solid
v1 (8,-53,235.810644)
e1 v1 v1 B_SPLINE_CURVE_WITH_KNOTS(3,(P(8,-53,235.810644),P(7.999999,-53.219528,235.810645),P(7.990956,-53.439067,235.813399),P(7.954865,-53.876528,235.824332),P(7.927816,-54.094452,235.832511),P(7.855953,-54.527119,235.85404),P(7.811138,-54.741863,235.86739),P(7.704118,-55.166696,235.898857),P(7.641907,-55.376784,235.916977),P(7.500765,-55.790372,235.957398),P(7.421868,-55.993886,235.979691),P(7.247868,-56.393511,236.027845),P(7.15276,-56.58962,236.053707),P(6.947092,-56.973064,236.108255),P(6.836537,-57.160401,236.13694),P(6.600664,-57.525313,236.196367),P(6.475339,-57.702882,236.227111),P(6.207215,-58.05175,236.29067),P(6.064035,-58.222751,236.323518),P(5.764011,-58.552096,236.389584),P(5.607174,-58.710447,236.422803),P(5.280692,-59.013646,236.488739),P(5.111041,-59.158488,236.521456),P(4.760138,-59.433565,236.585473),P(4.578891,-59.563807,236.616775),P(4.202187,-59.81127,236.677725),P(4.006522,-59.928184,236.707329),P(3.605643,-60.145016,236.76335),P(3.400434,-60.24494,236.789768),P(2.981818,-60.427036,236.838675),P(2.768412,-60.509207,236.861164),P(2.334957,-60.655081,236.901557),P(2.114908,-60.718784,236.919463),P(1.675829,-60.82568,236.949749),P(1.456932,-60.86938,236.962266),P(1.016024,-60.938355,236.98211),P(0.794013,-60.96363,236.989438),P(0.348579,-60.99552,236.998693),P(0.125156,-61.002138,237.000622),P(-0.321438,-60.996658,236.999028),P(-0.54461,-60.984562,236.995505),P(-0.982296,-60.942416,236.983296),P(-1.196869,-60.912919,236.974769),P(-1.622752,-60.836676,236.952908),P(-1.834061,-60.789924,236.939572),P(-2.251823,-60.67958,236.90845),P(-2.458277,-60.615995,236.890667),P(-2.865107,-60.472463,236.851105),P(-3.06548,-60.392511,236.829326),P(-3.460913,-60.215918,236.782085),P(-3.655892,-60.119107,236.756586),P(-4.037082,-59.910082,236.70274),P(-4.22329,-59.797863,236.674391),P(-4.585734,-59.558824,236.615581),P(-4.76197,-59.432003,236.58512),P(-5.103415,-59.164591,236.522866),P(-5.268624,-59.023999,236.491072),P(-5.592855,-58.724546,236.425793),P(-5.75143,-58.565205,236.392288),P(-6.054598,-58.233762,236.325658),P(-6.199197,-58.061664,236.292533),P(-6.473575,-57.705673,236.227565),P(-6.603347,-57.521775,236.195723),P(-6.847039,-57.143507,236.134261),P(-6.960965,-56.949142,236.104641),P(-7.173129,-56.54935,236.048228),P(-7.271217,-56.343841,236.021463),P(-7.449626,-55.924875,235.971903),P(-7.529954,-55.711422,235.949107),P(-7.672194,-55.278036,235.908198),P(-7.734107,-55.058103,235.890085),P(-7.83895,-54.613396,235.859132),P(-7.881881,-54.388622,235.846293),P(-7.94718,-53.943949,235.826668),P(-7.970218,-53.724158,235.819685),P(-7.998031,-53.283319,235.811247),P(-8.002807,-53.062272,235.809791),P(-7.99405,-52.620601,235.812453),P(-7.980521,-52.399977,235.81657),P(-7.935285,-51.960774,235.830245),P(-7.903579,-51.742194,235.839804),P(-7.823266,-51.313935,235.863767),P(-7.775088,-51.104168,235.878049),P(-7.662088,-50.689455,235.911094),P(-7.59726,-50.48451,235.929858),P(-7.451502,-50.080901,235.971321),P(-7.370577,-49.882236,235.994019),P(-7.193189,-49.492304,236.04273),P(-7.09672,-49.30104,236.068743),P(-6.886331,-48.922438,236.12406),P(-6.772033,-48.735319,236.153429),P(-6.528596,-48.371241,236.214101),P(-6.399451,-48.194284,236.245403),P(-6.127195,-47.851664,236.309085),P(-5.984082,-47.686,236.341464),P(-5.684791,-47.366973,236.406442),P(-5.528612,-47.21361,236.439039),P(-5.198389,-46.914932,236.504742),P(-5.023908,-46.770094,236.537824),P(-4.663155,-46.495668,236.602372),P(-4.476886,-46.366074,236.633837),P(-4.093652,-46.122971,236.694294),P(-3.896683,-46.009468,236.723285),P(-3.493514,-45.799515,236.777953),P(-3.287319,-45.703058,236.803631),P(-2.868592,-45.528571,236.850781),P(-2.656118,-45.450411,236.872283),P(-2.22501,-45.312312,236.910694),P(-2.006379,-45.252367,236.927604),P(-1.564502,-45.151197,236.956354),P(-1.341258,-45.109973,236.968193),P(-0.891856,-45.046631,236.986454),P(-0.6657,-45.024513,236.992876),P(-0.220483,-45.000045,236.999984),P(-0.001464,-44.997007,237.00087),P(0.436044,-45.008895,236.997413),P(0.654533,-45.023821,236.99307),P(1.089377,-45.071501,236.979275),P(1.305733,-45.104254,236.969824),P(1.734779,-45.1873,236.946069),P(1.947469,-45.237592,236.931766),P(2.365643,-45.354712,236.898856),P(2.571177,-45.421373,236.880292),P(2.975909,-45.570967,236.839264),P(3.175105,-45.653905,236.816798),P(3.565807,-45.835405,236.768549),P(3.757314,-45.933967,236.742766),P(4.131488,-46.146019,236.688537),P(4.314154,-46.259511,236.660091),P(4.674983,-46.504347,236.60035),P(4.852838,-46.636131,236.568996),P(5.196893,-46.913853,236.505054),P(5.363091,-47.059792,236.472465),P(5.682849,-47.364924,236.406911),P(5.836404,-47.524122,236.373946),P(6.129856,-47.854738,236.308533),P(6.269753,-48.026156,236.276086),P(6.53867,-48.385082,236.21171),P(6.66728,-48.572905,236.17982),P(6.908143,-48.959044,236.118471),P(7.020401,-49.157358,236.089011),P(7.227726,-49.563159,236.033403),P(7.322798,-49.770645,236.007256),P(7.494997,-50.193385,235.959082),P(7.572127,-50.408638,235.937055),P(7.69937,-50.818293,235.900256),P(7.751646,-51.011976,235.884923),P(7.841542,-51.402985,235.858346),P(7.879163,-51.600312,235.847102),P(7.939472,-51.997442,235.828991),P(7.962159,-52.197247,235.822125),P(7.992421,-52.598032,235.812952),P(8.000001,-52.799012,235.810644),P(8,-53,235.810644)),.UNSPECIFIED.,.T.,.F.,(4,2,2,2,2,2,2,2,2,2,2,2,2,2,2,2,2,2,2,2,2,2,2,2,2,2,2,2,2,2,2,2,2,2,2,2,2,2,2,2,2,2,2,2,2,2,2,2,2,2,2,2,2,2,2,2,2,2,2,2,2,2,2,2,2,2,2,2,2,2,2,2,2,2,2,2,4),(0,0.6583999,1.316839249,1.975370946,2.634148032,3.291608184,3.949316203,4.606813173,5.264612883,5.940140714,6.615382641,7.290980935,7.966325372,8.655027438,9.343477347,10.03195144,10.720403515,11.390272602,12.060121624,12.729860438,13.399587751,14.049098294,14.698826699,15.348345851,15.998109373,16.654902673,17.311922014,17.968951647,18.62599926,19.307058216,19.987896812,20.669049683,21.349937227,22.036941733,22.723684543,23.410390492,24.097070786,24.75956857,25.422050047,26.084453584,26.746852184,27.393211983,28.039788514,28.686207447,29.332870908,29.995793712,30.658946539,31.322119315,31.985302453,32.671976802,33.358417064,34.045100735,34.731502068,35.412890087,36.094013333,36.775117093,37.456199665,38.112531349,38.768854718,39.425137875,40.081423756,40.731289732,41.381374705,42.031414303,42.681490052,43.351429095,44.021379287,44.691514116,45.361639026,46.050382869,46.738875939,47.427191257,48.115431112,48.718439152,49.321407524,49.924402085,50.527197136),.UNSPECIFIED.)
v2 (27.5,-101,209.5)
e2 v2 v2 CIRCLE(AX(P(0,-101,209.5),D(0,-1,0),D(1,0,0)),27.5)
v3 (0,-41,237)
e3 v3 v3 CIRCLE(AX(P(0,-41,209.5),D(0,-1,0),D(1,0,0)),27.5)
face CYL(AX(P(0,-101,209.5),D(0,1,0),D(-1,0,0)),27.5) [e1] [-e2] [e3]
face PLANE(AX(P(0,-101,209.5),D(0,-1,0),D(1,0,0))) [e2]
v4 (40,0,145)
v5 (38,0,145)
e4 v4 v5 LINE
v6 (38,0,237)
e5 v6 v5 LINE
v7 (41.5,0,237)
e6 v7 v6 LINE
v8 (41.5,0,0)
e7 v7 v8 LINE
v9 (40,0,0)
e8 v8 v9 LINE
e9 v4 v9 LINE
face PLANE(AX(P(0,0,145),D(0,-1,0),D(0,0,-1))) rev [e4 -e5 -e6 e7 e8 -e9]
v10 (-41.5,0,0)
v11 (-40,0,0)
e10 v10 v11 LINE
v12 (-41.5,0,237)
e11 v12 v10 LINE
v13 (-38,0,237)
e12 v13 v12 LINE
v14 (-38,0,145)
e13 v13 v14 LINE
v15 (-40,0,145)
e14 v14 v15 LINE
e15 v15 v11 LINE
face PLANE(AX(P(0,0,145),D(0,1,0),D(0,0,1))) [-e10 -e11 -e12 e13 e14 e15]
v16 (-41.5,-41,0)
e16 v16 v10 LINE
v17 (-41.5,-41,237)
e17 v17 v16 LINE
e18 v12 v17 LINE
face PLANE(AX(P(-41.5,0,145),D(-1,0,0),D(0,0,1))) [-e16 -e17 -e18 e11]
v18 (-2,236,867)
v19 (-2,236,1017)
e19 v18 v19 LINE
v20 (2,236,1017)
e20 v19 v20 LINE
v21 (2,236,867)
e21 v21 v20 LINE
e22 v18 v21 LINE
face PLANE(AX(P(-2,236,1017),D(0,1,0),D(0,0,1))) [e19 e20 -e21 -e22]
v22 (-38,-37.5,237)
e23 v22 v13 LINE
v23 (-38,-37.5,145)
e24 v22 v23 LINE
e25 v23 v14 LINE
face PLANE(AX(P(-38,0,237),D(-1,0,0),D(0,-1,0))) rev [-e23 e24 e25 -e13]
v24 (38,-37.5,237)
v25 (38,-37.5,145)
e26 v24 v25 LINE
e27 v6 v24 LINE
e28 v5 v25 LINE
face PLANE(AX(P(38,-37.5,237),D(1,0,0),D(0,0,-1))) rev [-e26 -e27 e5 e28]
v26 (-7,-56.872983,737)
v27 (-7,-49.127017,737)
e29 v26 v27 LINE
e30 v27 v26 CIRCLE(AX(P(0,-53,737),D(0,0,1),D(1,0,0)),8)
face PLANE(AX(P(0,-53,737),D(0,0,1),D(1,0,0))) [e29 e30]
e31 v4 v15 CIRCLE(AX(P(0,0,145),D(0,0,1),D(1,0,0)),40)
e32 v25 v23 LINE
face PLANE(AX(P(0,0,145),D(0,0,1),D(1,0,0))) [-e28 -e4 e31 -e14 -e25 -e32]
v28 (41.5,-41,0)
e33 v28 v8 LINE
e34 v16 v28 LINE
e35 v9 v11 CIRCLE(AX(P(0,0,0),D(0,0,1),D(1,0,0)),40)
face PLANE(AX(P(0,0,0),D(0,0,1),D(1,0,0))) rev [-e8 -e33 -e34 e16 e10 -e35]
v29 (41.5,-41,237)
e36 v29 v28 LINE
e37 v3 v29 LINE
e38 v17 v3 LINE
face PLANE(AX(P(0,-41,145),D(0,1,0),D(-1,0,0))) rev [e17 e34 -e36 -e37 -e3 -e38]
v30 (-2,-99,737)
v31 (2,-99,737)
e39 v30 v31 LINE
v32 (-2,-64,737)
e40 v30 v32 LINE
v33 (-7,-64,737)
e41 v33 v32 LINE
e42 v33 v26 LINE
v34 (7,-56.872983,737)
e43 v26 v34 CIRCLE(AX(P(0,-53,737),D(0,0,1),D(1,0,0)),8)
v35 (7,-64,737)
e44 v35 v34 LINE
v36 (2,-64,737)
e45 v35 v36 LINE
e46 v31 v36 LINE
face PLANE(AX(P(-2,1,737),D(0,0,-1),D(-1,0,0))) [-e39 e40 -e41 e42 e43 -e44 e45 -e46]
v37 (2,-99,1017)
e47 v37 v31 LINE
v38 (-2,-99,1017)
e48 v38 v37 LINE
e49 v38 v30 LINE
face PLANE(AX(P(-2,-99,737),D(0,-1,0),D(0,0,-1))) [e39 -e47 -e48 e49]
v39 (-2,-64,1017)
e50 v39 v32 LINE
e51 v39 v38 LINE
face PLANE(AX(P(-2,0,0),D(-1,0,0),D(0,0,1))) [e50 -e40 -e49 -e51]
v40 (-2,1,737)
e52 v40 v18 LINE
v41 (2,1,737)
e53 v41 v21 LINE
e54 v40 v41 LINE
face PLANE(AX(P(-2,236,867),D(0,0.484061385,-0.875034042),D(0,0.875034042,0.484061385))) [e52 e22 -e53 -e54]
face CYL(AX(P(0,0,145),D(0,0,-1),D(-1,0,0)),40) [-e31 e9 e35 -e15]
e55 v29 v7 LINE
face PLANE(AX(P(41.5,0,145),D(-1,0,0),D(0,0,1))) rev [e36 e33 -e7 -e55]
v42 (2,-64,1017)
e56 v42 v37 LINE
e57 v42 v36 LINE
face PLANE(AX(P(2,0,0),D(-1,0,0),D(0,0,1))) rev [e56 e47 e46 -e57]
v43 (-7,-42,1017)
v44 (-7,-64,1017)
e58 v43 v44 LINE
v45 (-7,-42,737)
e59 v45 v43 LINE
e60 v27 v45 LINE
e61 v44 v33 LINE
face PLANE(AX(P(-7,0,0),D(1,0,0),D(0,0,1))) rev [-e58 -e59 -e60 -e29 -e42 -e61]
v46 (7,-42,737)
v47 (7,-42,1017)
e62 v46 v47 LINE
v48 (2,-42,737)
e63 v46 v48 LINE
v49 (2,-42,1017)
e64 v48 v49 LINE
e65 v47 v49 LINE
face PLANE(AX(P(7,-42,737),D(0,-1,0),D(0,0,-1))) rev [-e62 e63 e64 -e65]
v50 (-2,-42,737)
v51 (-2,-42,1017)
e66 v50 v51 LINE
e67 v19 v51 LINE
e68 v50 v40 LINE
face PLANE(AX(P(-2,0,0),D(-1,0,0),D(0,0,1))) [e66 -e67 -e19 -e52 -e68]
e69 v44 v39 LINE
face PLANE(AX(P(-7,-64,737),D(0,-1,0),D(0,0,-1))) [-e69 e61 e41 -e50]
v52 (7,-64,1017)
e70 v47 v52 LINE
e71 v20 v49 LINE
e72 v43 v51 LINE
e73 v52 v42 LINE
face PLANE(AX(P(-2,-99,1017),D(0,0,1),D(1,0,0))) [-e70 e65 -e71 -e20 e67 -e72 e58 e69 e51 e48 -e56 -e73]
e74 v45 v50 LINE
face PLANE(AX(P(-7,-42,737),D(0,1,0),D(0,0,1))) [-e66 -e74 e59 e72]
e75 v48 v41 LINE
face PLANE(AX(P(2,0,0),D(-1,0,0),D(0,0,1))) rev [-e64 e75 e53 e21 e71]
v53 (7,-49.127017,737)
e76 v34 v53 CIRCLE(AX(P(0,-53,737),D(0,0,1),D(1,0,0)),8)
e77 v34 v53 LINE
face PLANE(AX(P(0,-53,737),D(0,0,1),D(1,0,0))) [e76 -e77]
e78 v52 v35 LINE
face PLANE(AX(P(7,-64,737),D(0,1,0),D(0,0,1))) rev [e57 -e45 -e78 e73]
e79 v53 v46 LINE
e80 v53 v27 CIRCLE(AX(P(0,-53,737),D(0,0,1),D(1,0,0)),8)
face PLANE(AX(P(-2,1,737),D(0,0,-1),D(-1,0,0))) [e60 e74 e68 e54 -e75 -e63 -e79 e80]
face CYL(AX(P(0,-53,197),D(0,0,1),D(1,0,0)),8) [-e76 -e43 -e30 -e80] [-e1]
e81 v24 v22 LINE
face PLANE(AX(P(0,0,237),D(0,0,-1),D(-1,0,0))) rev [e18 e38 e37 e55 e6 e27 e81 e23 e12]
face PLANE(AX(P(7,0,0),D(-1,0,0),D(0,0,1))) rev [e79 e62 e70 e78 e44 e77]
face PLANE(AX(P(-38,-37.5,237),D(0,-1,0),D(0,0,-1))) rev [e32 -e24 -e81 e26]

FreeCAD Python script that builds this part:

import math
import FreeCAD as App
import Part
import Sketcher
from FreeCAD import Vector

doc = App.newDocument("Part")
body = doc.addObject("PartDesign::Body", "Body")

# Sketch on XY plane
sketch1 = body.newObject("Sketcher::SketchObject", "Sketch")
sketch1.AttachmentSupport = (doc.getObject("XY_Plane"), [""])
sketch1.MapMode = "FlatFace"
sketch1.addGeometry(Part.LineSegment(Vector(-41.5, 0, 0), Vector(-41.5, -41, 0)), False)
sketch1.addGeometry(Part.LineSegment(Vector(-41.5, -41, 0), Vector(41.5, -41, 0)), False)
sketch1.addGeometry(Part.LineSegment(Vector(41.5, -41, 0), Vector(41.5, 0, 0)), False)
sketch1.addGeometry(Part.LineSegment(Vector(41.5, 0, 0), Vector(40, 0, 0)), False)
sketch1.addGeometry(Part.ArcOfCircle(Part.Circle(Vector(0, 0, 0), Vector(0, 0, 1), 40), math.radians(0), math.radians(180)), False)
sketch1.addGeometry(Part.LineSegment(Vector(-40, 0, 0), Vector(-41.5, 0, 0)), False)
sketch1.addConstraint(Sketcher.Constraint("Coincident", 0, 2, 1, 1))
sketch1.addConstraint(Sketcher.Constraint("Coincident", 1, 2, 2, 1))
sketch1.addConstraint(Sketcher.Constraint("Coincident", 2, 2, 3, 1))
sketch1.addConstraint(Sketcher.Constraint("Coincident", 3, 2, 4, 1))
sketch1.addConstraint(Sketcher.Constraint("Coincident", 4, 2, 5, 1))
sketch1.addConstraint(Sketcher.Constraint("Coincident", 5, 2, 0, 1))
sketch1.addConstraint(Sketcher.Constraint("Vertical", 0))
sketch1.addConstraint(Sketcher.Constraint("Horizontal", 1))
sketch1.addConstraint(Sketcher.Constraint("Vertical", 2))
sketch1.addConstraint(Sketcher.Constraint("Horizontal", 3))
sketch1.addConstraint(Sketcher.Constraint("Horizontal", 5))
sketch1.addConstraint(Sketcher.Constraint("Coincident", 4, 3, -1, 1))
sketch1.addConstraint(Sketcher.Constraint("Symmetric", 2, 2, 5, 2, -1, 1))
sketch1.addConstraint(Sketcher.Constraint("PointOnObject", 2, 2, -1))
sketch1.addConstraint(Sketcher.Constraint("Radius", 4, 40.0))
sketch1.addConstraint(Sketcher.Constraint("DistanceX", 1, 1, 1, 2, 83.0))
sketch1.addConstraint(Sketcher.Constraint("DistanceY", 0, 2, 0, 1, 41.0))
pad1 = body.newObject("PartDesign::Pad", "Pad")
pad1.Profile = sketch1
pad1.Length = 145

# Sketch on XY plane
sketch2 = body.newObject("Sketcher::SketchObject", "Sketch001")
sketch2.AttachmentSupport = (doc.getObject("XY_Plane"), [""])
sketch2.MapMode = "FlatFace"
sketch2.AttachmentOffset = App.Placement(Vector(0, 0, 145), App.Rotation())
sketch2.addGeometry(Part.LineSegment(Vector(-38, 0, 0), Vector(-41.5, 0, 0)), False)
sketch2.addGeometry(Part.LineSegment(Vector(-41.5, 0, 0), Vector(-41.5, -41, 0)), False)
sketch2.addGeometry(Part.LineSegment(Vector(-41.5, -41, 0), Vector(41.5, -41, 0)), False)
sketch2.addGeometry(Part.LineSegment(Vector(41.5, -41, 0), Vector(41.5, 0, 0)), False)
sketch2.addGeometry(Part.LineSegment(Vector(41.5, 0, 0), Vector(38, 0, 0)), False)
sketch2.addGeometry(Part.LineSegment(Vector(38, 0, 0), Vector(38, -37.5, 0)), False)
sketch2.addGeometry(Part.LineSegment(Vector(38, -37.5, 0), Vector(-38, -37.5, 0)), False)
sketch2.addGeometry(Part.LineSegment(Vector(-38, -37.5, 0), Vector(-38, 0, 0)), False)
sketch2.addConstraint(Sketcher.Constraint("Coincident", 0, 2, 1, 1))
sketch2.addConstraint(Sketcher.Constraint("Coincident", 1, 2, 2, 1))
sketch2.addConstraint(Sketcher.Constraint("Coincident", 2, 2, 3, 1))
sketch2.addConstraint(Sketcher.Constraint("Coincident", 3, 2, 4, 1))
sketch2.addConstraint(Sketcher.Constraint("Coincident", 4, 2, 5, 1))
sketch2.addConstraint(Sketcher.Constraint("Coincident", 5, 2, 6, 1))
sketch2.addConstraint(Sketcher.Constraint("Coincident", 6, 2, 7, 1))
sketch2.addConstraint(Sketcher.Constraint("Coincident", 7, 2, 0, 1))
sketch2.addConstraint(Sketcher.Constraint("Horizontal", 0))
sketch2.addConstraint(Sketcher.Constraint("Vertical", 1))
sketch2.addConstraint(Sketcher.Constraint("Horizontal", 2))
sketch2.addConstraint(Sketcher.Constraint("Vertical", 3))
sketch2.addConstraint(Sketcher.Constraint("Horizontal", 4))
sketch2.addConstraint(Sketcher.Constraint("Vertical", 5))
sketch2.addConstraint(Sketcher.Constraint("Horizontal", 6))
sketch2.addConstraint(Sketcher.Constraint("Vertical", 7))
sketch2.addConstraint(Sketcher.Constraint("Symmetric", 0, 2, 3, 2, -1, 1))
sketch2.addConstraint(Sketcher.Constraint("Symmetric", 4, 2, 7, 2, -2))
sketch2.addConstraint(Sketcher.Constraint("DistanceX", 2, 1, 2, 2, 83.0))
sketch2.addConstraint(Sketcher.Constraint("DistanceX", 6, 2, 6, 1, 76.0))
sketch2.addConstraint(Sketcher.Constraint("DistanceY", 1, 2, 1, 1, 41.0))
sketch2.addConstraint(Sketcher.Constraint("DistanceY", 5, 2, 5, 1, 37.5))
pad2 = body.newObject("PartDesign::Pad", "Pad001")
pad2.Profile = sketch2
pad2.Length = 92

# Sketch on XZ plane
sketch3 = body.newObject("Sketcher::SketchObject", "Sketch002")
sketch3.AttachmentSupport = (doc.getObject("XZ_Plane"), [""])
sketch3.MapMode = "FlatFace"
sketch3.AttachmentOffset = App.Placement(Vector(0, 0, 41), App.Rotation())
sketch3.addGeometry(Part.Circle(Vector(0, 210, 0), Vector(0, 0, 1), 28), False)
sketch3.addConstraint(Sketcher.Constraint("PointOnObject", 0, 3, -2))
sketch3.addConstraint(Sketcher.Constraint("Diameter", 0, 55.0))
sketch3.addConstraint(Sketcher.Constraint("DistanceY", -1, 1, 0, 3, 209.5))
pad3 = body.newObject("PartDesign::Pad", "Pad002")
pad3.Profile = sketch3
pad3.Length = 60

# Sketch on XY plane
sketch4 = body.newObject("Sketcher::SketchObject", "Sketch003")
sketch4.AttachmentSupport = (doc.getObject("XY_Plane"), [""])
sketch4.MapMode = "FlatFace"
sketch4.AttachmentOffset = App.Placement(Vector(0, 0, 237), App.Rotation())
sketch4.addGeometry(Part.Circle(Vector(0, -53, 0), Vector(0, 0, 1), 8), False)
sketch4.addConstraint(Sketcher.Constraint("PointOnObject", 0, 3, -2))
sketch4.addConstraint(Sketcher.Constraint("Diameter", 0, 16.0))
sketch4.addConstraint(Sketcher.Constraint("DistanceY", 0, 3, -1, 1, 53.0))
pad4 = body.newObject("PartDesign::Pad", "Pad003")
pad4.Profile = sketch4
pad4.Type = "TwoLengths"
pad4.Length = 500
pad4.Length2 = 40

# Sketch on YZ plane
sketch5 = body.newObject("Sketcher::SketchObject", "Sketch004")
sketch5.AttachmentSupport = (doc.getObject("YZ_Plane"), [""])
sketch5.MapMode = "FlatFace"
sketch5.addGeometry(Part.LineSegment(Vector(-99, 737, 0), Vector(1, 737, 0)), False)
sketch5.addGeometry(Part.LineSegment(Vector(1, 737, 0), Vector(236, 867, 0)), False)
sketch5.addGeometry(Part.LineSegment(Vector(236, 867, 0), Vector(236, 1017, 0)), False)
sketch5.addGeometry(Part.LineSegment(Vector(236, 1017, 0), Vector(-99, 1017, 0)), False)
sketch5.addGeometry(Part.LineSegment(Vector(-99, 1017, 0), Vector(-99, 737, 0)), False)
sketch5.addConstraint(Sketcher.Constraint("Coincident", 0, 2, 1, 1))
sketch5.addConstraint(Sketcher.Constraint("Coincident", 1, 2, 2, 1))
sketch5.addConstraint(Sketcher.Constraint("Coincident", 2, 2, 3, 1))
sketch5.addConstraint(Sketcher.Constraint("Coincident", 3, 2, 4, 1))
sketch5.addConstraint(Sketcher.Constraint("Coincident", 4, 2, 0, 1))
sketch5.addConstraint(Sketcher.Constraint("Horizontal", 0))
sketch5.addConstraint(Sketcher.Constraint("Vertical", 2))
sketch5.addConstraint(Sketcher.Constraint("Horizontal", 3))
sketch5.addConstraint(Sketcher.Constraint("Vertical", 4))
sketch5.addConstraint(Sketcher.Constraint("DistanceX", 0, 1, 0, 2, 100.0))
sketch5.addConstraint(Sketcher.Constraint("DistanceX", 3, 2, 3, 1, 335.0))
sketch5.addConstraint(Sketcher.Constraint("DistanceY", 2, 1, 2, 2, 150.0))
sketch5.addConstraint(Sketcher.Constraint("DistanceY", 4, 2, 4, 1, 280.0))
sketch5.addConstraint(Sketcher.Constraint("DistanceX", -1, 1, 0, 2, 1.0))
sketch5.addConstraint(Sketcher.Constraint("DistanceY", -1, 1, 0, 2, 737.0))
pad5 = body.newObject("PartDesign::Pad", "Pad004")
pad5.Profile = sketch5
pad5.Type = "TwoLengths"
pad5.Length = 2
pad5.Length2 = 2

# Sketch on YZ plane
sketch6 = body.newObject("Sketcher::SketchObject", "Sketch005")
sketch6.AttachmentSupport = (doc.getObject("YZ_Plane"), [""])
sketch6.MapMode = "FlatFace"
sketch6.AttachmentOffset = App.Placement(Vector(0, 0, 2), App.Rotation())
sketch6.addGeometry(Part.LineSegment(Vector(-42, 1017, 0), Vector(-64, 1017, 0)), False)
sketch6.addGeometry(Part.LineSegment(Vector(-64, 1017, 0), Vector(-64, 737, 0)), False)
sketch6.addGeometry(Part.LineSegment(Vector(-64, 737, 0), Vector(-42, 737, 0)), False)
sketch6.addGeometry(Part.LineSegment(Vector(-42, 737, 0), Vector(-42, 1017, 0)), False)
sketch6.addConstraint(Sketcher.Constraint("Coincident", 0, 2, 1, 1))
sketch6.addConstraint(Sketcher.Constraint("Coincident", 1, 2, 2, 1))
sketch6.addConstraint(Sketcher.Constraint("Coincident", 2, 2, 3, 1))
sketch6.addConstraint(Sketcher.Constraint("Coincident", 3, 2, 0, 1))
sketch6.addConstraint(Sketcher.Constraint("Horizontal", 0))
sketch6.addConstraint(Sketcher.Constraint("Vertical", 1))
sketch6.addConstraint(Sketcher.Constraint("Horizontal", 2))
sketch6.addConstraint(Sketcher.Constraint("Vertical", 3))
sketch6.addConstraint(Sketcher.Constraint("DistanceX", 0, 2, 0, 1, 22.0))
sketch6.addConstraint(Sketcher.Constraint("DistanceY", 1, 2, 1, 1, 280.0))
sketch6.addConstraint(Sketcher.Constraint("DistanceX", 0, 2, -1, 1, 64.0))
sketch6.addConstraint(Sketcher.Constraint("DistanceY", -1, 1, 0, 2, 1017.0))
pad6 = body.newObject("PartDesign::Pad", "Pad005")
pad6.Profile = sketch6
pad6.Length = 5
doc.recompute()

mirrored = body.newObject("PartDesign::Mirrored", "Mirrored")
mirrored.Originals = [pad6]
mirrored.MirrorPlane = (doc.getObject("YZ_Plane"), [""])
body.Tip = mirrored

doc.recompute()
